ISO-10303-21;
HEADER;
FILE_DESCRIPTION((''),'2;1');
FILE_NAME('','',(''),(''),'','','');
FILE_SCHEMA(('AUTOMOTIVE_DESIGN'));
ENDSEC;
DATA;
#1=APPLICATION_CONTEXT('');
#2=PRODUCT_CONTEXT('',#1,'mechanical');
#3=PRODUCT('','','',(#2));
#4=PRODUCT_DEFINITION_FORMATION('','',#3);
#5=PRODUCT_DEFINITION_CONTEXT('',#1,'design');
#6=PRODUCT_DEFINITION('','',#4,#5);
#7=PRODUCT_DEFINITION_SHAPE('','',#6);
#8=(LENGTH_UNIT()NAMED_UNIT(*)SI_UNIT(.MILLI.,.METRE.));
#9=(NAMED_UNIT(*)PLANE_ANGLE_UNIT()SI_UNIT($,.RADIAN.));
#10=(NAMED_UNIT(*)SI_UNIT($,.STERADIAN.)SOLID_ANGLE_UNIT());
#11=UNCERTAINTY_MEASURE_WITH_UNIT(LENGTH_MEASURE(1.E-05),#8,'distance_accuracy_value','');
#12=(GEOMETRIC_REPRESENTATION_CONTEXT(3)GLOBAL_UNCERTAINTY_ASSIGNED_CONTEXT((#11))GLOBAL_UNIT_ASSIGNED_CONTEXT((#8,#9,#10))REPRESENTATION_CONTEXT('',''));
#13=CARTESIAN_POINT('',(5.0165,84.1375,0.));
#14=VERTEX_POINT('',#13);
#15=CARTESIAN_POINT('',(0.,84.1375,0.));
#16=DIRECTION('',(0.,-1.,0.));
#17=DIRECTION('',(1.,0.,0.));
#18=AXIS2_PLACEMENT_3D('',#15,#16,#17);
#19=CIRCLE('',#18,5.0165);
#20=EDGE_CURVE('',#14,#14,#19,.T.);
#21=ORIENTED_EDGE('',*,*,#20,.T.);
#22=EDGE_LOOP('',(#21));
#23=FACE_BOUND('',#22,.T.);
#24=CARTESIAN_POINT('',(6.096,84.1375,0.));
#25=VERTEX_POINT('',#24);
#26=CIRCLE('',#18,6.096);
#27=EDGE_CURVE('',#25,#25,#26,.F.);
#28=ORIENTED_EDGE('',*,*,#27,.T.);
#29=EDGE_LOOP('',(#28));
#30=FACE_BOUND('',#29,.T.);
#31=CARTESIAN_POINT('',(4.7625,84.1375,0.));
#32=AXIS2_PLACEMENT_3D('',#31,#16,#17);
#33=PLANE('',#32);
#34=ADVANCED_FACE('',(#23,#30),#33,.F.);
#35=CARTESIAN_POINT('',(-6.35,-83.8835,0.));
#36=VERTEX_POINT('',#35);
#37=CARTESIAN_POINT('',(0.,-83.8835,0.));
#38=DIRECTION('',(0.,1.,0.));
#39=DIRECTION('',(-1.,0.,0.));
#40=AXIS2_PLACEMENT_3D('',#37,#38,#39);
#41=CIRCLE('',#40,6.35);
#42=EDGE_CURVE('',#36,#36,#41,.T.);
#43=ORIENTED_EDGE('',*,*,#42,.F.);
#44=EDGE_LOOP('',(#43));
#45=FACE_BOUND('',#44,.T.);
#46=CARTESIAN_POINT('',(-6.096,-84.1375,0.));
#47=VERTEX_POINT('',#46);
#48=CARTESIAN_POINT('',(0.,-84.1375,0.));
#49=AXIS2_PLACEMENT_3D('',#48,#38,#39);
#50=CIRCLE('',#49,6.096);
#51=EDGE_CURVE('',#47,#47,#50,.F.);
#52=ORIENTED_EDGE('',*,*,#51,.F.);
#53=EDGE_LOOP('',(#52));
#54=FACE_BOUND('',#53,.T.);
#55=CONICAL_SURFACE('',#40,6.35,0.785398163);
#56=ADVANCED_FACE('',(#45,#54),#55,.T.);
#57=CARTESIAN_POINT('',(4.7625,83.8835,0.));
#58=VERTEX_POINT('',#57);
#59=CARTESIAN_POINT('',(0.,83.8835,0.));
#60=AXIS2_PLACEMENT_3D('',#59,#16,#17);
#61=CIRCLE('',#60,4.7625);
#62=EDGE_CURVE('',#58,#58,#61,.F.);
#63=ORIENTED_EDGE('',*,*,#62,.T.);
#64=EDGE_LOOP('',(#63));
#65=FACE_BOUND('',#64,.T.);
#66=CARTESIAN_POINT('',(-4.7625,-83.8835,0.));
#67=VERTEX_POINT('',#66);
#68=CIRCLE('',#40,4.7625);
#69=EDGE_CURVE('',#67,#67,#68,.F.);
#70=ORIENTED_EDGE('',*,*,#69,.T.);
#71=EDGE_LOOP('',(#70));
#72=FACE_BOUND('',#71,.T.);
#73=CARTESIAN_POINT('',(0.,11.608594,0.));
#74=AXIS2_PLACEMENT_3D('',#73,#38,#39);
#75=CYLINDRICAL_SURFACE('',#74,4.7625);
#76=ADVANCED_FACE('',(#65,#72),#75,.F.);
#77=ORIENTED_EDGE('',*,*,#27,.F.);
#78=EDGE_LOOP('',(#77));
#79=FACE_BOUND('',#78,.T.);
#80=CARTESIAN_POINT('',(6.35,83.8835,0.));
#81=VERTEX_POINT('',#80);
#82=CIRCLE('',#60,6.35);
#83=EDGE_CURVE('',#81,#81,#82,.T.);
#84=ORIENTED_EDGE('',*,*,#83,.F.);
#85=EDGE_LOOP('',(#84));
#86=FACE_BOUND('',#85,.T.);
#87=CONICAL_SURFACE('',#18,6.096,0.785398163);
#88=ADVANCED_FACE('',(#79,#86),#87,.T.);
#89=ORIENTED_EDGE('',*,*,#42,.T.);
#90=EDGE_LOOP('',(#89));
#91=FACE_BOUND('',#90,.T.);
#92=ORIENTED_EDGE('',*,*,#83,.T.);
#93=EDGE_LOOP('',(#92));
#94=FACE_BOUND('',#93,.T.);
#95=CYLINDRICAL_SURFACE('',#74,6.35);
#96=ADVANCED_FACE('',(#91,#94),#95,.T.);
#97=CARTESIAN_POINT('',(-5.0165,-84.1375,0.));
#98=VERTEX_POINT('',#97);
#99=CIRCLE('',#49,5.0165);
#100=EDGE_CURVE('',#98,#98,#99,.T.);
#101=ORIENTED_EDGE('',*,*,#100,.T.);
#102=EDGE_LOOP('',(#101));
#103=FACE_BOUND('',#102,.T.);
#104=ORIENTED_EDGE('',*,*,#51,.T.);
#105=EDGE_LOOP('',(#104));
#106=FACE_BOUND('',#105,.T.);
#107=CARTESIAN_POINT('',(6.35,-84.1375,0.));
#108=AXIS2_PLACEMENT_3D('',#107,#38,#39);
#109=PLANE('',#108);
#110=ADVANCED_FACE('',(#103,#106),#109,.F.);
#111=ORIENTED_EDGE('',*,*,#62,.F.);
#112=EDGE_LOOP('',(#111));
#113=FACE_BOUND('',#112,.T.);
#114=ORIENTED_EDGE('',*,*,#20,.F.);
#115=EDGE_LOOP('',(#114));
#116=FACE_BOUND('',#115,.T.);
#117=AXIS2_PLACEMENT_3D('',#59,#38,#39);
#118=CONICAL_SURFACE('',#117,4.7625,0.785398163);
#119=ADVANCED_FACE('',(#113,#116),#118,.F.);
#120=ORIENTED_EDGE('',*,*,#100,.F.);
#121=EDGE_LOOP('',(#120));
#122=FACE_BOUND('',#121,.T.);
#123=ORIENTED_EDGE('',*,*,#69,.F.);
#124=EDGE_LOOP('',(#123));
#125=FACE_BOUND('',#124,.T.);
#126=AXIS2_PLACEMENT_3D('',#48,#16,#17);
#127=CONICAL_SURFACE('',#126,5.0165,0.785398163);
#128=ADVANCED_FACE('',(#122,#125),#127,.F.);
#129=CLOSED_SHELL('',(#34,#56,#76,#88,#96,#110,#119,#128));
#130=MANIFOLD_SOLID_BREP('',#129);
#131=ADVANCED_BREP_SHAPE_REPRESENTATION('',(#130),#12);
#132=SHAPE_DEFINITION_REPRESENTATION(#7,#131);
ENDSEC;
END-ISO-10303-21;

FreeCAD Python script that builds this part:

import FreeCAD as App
import Part
import Sketcher
from FreeCAD import Vector
Q = App.Units.Quantity


def edges_at(feature, points):
    """Names of the edges that pass closest to the given points."""
    edges = feature.Shape.Edges
    near = lambda p: min(range(len(edges)), key=lambda i: edges[i].distToShape(Part.Vertex(*p))[0])
    return sorted({f"Edge{near(p) + 1}" for p in points})

doc = App.newDocument("Part")
params = doc.addObject("Spreadsheet::Sheet", "Params")
for row, (alias, value) in enumerate([
    ("sketch1_width", "0.0625 in"),
    ("sketch1_height", "6.625 in"),
    ("revolution_angle", "360 deg"),
    ("chamfer_size", "0.01 in"),
], start=1):
    params.set(f"A{row}", alias)
    params.set(f"B{row}", "=" + value)
    params.setAlias(f"B{row}", alias)

body = doc.addObject("PartDesign::Body", "Body")

# Sketch on XY plane
sketch1 = body.newObject("Sketcher::SketchObject", "Sketch")
sketch1.AttachmentSupport = (doc.getObject("XY_Plane"), [""])
sketch1.MapMode = "FlatFace"
sketch1.addGeometry(Part.LineSegment(Vector(4.8, 84.1, 0), Vector(4.8, -84.1, 0)), False)
sketch1.addGeometry(Part.LineSegment(Vector(4.8, -84.1, 0), Vector(6.3, -84.1, 0)), False)
sketch1.addGeometry(Part.LineSegment(Vector(6.3, -84.1, 0), Vector(6.3, 84.1, 0)), False)
sketch1.addGeometry(Part.LineSegment(Vector(6.3, 84.1, 0), Vector(4.8, 84.1, 0)), False)
sketch1.addConstraint(Sketcher.Constraint("Coincident", 0, 2, 1, 1))
sketch1.addConstraint(Sketcher.Constraint("Coincident", 1, 2, 2, 1))
sketch1.addConstraint(Sketcher.Constraint("Coincident", 2, 2, 3, 1))
sketch1.addConstraint(Sketcher.Constraint("Coincident", 3, 2, 0, 1))
sketch1.addConstraint(Sketcher.Constraint("Vertical", 0))
sketch1.addConstraint(Sketcher.Constraint("Horizontal", 1))
sketch1.addConstraint(Sketcher.Constraint("Vertical", 2))
sketch1.addConstraint(Sketcher.Constraint("Horizontal", 3))
sketch1.addConstraint(Sketcher.Constraint("DistanceX", 1, 1, 1, 2, Q("0.0625 in")))
sketch1.addConstraint(Sketcher.Constraint("DistanceY", 0, 2, 0, 1, Q("6.625 in")))
sketch1.addConstraint(Sketcher.Constraint("DistanceX", -1, 1, 1, 2, Q("0.25 in")))
sketch1.addConstraint(Sketcher.Constraint("DistanceY", 0, 2, -1, 1, Q("3.3125 in")))
sketch1.setExpression("Constraints[8]", "Params.sketch1_width")
sketch1.setExpression("Constraints[9]", "Params.sketch1_height")
revolution = body.newObject("PartDesign::Revolution", "Revolution")
revolution.Profile = sketch1
revolution.ReferenceAxis = (sketch1, ["V_Axis"])
revolution.setExpression("Angle", "Params.revolution_angle")
doc.recompute()

chamfer = body.newObject("PartDesign::Chamfer", "Chamfer")
chamfer.Base = (revolution, edges_at(revolution, [
    (-4.763, -84.138, 0),
    (-6.35, -84.138, 0),
    (-6.35, 84.138, 0),
    (-4.763, 84.138, 0),
]))
chamfer.setExpression("Size", "Params.chamfer_size")

doc.recompute()
